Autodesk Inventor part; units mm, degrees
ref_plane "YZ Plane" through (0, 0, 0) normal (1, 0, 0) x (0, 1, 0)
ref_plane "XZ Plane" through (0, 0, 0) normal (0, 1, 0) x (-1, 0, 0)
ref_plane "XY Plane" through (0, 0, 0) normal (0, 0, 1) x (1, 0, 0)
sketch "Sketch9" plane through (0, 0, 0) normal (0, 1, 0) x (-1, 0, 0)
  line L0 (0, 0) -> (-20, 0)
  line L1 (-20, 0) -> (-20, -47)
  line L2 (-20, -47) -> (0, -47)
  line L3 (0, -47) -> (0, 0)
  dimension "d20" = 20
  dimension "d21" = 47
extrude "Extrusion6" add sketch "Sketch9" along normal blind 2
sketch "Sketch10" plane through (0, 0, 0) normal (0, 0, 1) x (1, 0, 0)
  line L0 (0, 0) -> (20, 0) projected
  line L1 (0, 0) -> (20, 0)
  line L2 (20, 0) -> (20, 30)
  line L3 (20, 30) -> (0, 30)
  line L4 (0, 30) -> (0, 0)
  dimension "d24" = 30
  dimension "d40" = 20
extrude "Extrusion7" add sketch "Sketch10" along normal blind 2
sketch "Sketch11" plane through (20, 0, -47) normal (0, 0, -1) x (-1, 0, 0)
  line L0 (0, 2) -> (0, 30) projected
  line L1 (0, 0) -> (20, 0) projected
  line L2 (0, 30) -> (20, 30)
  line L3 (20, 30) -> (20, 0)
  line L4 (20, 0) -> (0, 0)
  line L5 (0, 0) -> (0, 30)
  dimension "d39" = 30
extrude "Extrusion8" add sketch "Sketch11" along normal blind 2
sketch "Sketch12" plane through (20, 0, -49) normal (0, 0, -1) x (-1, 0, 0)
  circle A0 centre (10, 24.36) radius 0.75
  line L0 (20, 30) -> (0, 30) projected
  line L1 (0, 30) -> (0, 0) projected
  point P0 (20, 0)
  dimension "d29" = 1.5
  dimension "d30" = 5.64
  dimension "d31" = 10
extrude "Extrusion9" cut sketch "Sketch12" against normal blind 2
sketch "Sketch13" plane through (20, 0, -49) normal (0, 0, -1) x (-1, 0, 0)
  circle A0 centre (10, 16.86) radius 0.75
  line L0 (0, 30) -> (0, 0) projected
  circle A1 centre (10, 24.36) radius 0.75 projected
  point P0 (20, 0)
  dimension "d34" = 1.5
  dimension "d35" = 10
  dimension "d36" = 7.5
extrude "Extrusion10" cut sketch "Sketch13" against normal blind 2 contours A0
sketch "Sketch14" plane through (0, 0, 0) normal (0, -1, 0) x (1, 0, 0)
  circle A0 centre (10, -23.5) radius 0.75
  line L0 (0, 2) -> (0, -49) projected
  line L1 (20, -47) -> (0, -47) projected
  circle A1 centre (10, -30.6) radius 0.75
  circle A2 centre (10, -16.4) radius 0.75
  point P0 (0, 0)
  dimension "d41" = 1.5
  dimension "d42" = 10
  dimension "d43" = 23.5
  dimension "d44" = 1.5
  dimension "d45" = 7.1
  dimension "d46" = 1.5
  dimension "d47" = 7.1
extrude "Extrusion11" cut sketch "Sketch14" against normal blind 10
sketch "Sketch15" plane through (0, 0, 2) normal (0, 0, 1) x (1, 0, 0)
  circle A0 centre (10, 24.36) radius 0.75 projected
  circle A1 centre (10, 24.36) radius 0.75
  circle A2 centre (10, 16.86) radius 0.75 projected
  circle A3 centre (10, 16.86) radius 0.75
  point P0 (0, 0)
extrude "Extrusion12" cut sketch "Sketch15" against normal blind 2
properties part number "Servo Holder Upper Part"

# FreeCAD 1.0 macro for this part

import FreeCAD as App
import Part
import Sketcher
from FreeCAD import Vector
Q = App.Units.Quantity

doc = App.newDocument("Part")
body = doc.addObject("PartDesign::Body", "Body")

sketch1 = doc.addObject("Sketcher::SketchObject", "Sketch")
body.addObject(sketch1)
sketch1.AttachmentSupport = (doc.XZ_Plane, [""])
sketch1.MapMode = "FlatFace"
sketch1.addGeometry(Part.LineSegment(Vector(0, -47, 0), Vector(0, 0, 0)), False)
sketch1.addGeometry(Part.LineSegment(Vector(0, 0, 0), Vector(20, 0, 0)), False)
sketch1.addGeometry(Part.LineSegment(Vector(20, 0, 0), Vector(20, -47, 0)), False)
sketch1.addGeometry(Part.LineSegment(Vector(20, -47, 0), Vector(0, -47, 0)), False)
sketch1.addConstraint(Sketcher.Constraint("Coincident", 0, 2, 1, 1))
sketch1.addConstraint(Sketcher.Constraint("Coincident", 1, 2, 2, 1))
sketch1.addConstraint(Sketcher.Constraint("Coincident", 2, 2, 3, 1))
sketch1.addConstraint(Sketcher.Constraint("Coincident", 3, 2, 0, 1))
sketch1.addConstraint(Sketcher.Constraint("Vertical", 0))
sketch1.addConstraint(Sketcher.Constraint("Horizontal", 1))
sketch1.addConstraint(Sketcher.Constraint("Vertical", 2))
sketch1.addConstraint(Sketcher.Constraint("Horizontal", 3))
sketch1.addConstraint(Sketcher.Constraint("Coincident", 0, 2, -1, 1))
sketch1.addConstraint(Sketcher.Constraint("DistanceX", 1, 1, 1, 2, Q("20 mm")))
sketch1.addConstraint(Sketcher.Constraint("DistanceY", 0, 1, 0, 2, Q("47 mm")))
pad1 = doc.addObject("PartDesign::Pad", "Pad")
body.addObject(pad1)
pad1.Profile = sketch1
pad1.Length = 2
pad1.Reversed = True

sketch2 = doc.addObject("Sketcher::SketchObject", "Sketch001")
body.addObject(sketch2)
sketch2.AttachmentSupport = (doc.XY_Plane, [""])
sketch2.MapMode = "FlatFace"
sketch2.addGeometry(Part.LineSegment(Vector(0, 30, 0), Vector(0, 0, 0)), False)
sketch2.addGeometry(Part.LineSegment(Vector(0, 0, 0), Vector(20, 0, 0)), False)
sketch2.addGeometry(Part.LineSegment(Vector(20, 0, 0), Vector(20, 30, 0)), False)
sketch2.addGeometry(Part.LineSegment(Vector(20, 30, 0), Vector(0, 30, 0)), False)
sketch2.addConstraint(Sketcher.Constraint("Coincident", 0, 2, 1, 1))
sketch2.addConstraint(Sketcher.Constraint("Coincident", 1, 2, 2, 1))
sketch2.addConstraint(Sketcher.Constraint("Coincident", 2, 2, 3, 1))
sketch2.addConstraint(Sketcher.Constraint("Coincident", 3, 2, 0, 1))
sketch2.addConstraint(Sketcher.Constraint("Vertical", 0))
sketch2.addConstraint(Sketcher.Constraint("Horizontal", 1))
sketch2.addConstraint(Sketcher.Constraint("Vertical", 2))
sketch2.addConstraint(Sketcher.Constraint("Horizontal", 3))
sketch2.addConstraint(Sketcher.Constraint("Coincident", 0, 2, -1, 1))
sketch2.addConstraint(Sketcher.Constraint("DistanceX", 1, 1, 1, 2, Q("20 mm")))
sketch2.addConstraint(Sketcher.Constraint("DistanceY", 0, 2, 0, 1, Q("30 mm")))
pad2 = doc.addObject("PartDesign::Pad", "Pad001")
body.addObject(pad2)
pad2.Profile = sketch2
pad2.Length = 2

sketch3 = doc.addObject("Sketcher::SketchObject", "Sketch002")
body.addObject(sketch3)
sketch3.AttachmentSupport = (doc.XY_Plane, [""])
sketch3.MapMode = "FlatFace"
sketch3.AttachmentOffset = App.Placement(Vector(0, 0, -47), App.Rotation())
sketch3.addGeometry(Part.LineSegment(Vector(20, 30, 0), Vector(20, 0, 0)), False)
sketch3.addGeometry(Part.LineSegment(Vector(20, 0, 0), Vector(0, 0, 0)), False)
sketch3.addGeometry(Part.LineSegment(Vector(0, 0, 0), Vector(0, 30, 0)), False)
sketch3.addGeometry(Part.LineSegment(Vector(0, 30, 0), Vector(20, 30, 0)), False)
sketch3.addConstraint(Sketcher.Constraint("Coincident", 0, 2, 1, 1))
sketch3.addConstraint(Sketcher.Constraint("Coincident", 1, 2, 2, 1))
sketch3.addConstraint(Sketcher.Constraint("Coincident", 2, 2, 3, 1))
sketch3.addConstraint(Sketcher.Constraint("Coincident", 3, 2, 0, 1))
sketch3.addConstraint(Sketcher.Constraint("Vertical", 0))
sketch3.addConstraint(Sketcher.Constraint("Horizontal", 1))
sketch3.addConstraint(Sketcher.Constraint("Vertical", 2))
sketch3.addConstraint(Sketcher.Constraint("Horizontal", 3))
sketch3.addConstraint(Sketcher.Constraint("Coincident", 1, 2, -1, 1))
sketch3.addConstraint(Sketcher.Constraint("DistanceY", 0, 2, 0, 1, Q("30 mm")))
sketch3.addConstraint(Sketcher.Constraint("DistanceX", 1, 2, 1, 1, Q("20 mm")))
pad3 = doc.addObject("PartDesign::Pad", "Pad002")
body.addObject(pad3)
pad3.Profile = sketch3
pad3.Length = 2
pad3.Reversed = True

sketch4 = doc.addObject("Sketcher::SketchObject", "Sketch003")
body.addObject(sketch4)
sketch4.AttachmentSupport = (doc.XY_Plane, [""])
sketch4.MapMode = "FlatFace"
sketch4.AttachmentOffset = App.Placement(Vector(0, 0, -49), App.Rotation())
sketch4.addGeometry(Part.Circle(Vector(10, 24.36, 0), Vector(0, 0, 1), 0.75), False)
sketch4.addConstraint(Sketcher.Constraint("Diameter", 0, Q("1.5 mm")))
sketch4.addConstraint(Sketcher.Constraint("DistanceX", -1, 1, 0, 3, Q("10 mm")))
sketch4.addConstraint(Sketcher.Constraint("DistanceY", -1, 1, 0, 3, Q("24.36 mm")))
pocket1 = doc.addObject("PartDesign::Pocket", "Pocket")
body.addObject(pocket1)
pocket1.Profile = sketch4
pocket1.Length = 2
pocket1.Reversed = True

sketch5 = doc.addObject("Sketcher::SketchObject", "Sketch004")
body.addObject(sketch5)
sketch5.AttachmentSupport = (doc.XY_Plane, [""])
sketch5.MapMode = "FlatFace"
sketch5.AttachmentOffset = App.Placement(Vector(0, 0, -49), App.Rotation())
sketch5.addGeometry(Part.Circle(Vector(10, 16.86, 0), Vector(0, 0, 1), 0.75), False)
sketch5.addConstraint(Sketcher.Constraint("Diameter", 0, Q("1.5 mm")))
sketch5.addConstraint(Sketcher.Constraint("DistanceX", -1, 1, 0, 3, Q("10 mm")))
sketch5.addConstraint(Sketcher.Constraint("DistanceY", -1, 1, 0, 3, Q("16.86 mm")))
pocket2 = doc.addObject("PartDesign::Pocket", "Pocket001")
body.addObject(pocket2)
pocket2.Profile = sketch5
pocket2.Length = 2
pocket2.Reversed = True

sketch6 = doc.addObject("Sketcher::SketchObject", "Sketch005")
body.addObject(sketch6)
sketch6.AttachmentSupport = (doc.XZ_Plane, [""])
sketch6.MapMode = "FlatFace"
sketch6.addGeometry(Part.Circle(Vector(10, -23.5, 0), Vector(0, 0, 1), 0.75), False)
sketch6.addGeometry(Part.Circle(Vector(10, -30.6, 0), Vector(0, 0, 1), 0.75), False)
sketch6.addGeometry(Part.Circle(Vector(10, -16.4, 0), Vector(0, 0, 1), 0.75), False)
sketch6.addConstraint(Sketcher.Constraint("Equal", 0, 1))
sketch6.addConstraint(Sketcher.Constraint("Equal", 1, 2))
sketch6.addConstraint(Sketcher.Constraint("Vertical", 0, 3, 1, 3))
sketch6.addConstraint(Sketcher.Constraint("Vertical", 1, 3, 2, 3))
sketch6.addConstraint(Sketcher.Constraint("Diameter", 0, Q("1.5 mm")))
sketch6.addConstraint(Sketcher.Constraint("DistanceX", -1, 1, 0, 3, Q("10 mm")))
sketch6.addConstraint(Sketcher.Constraint("DistanceY", 0, 3, -1, 1, Q("23.5 mm")))
sketch6.addConstraint(Sketcher.Constraint("DistanceY", 1, 3, 0, 3, Q("7.1 mm")))
sketch6.addConstraint(Sketcher.Constraint("DistanceY", 0, 3, 2, 3, Q("7.1 mm")))
pocket3 = doc.addObject("PartDesign::Pocket", "Pocket002")
body.addObject(pocket3)
pocket3.Profile = sketch6
pocket3.Length = 10

sketch7 = doc.addObject("Sketcher::SketchObject", "Sketch006")
body.addObject(sketch7)
sketch7.AttachmentSupport = (doc.XY_Plane, [""])
sketch7.MapMode = "FlatFace"
sketch7.AttachmentOffset = App.Placement(Vector(0, 0, 2), App.Rotation())
sketch7.addGeometry(Part.Circle(Vector(10, 24.36, 0), Vector(0, 0, 1), 0.75), False)
sketch7.addGeometry(Part.Circle(Vector(10, 16.86, 0), Vector(0, 0, 1), 0.75), False)
sketch7.addConstraint(Sketcher.Constraint("Equal", 0, 1))
sketch7.addConstraint(Sketcher.Constraint("Vertical", 0, 3, 1, 3))
sketch7.addConstraint(Sketcher.Constraint("Diameter", 0, Q("1.5 mm")))
sketch7.addConstraint(Sketcher.Constraint("DistanceX", -1, 1, 0, 3, Q("10 mm")))
sketch7.addConstraint(Sketcher.Constraint("DistanceY", 1, 3, 0, 3, Q("7.5 mm")))
sketch7.addConstraint(Sketcher.Constraint("DistanceY", -1, 1, 0, 3, Q("24.36 mm")))
pocket4 = doc.addObject("PartDesign::Pocket", "Pocket003")
body.addObject(pocket4)
pocket4.Profile = sketch7
pocket4.Length = 2

doc.recompute()
